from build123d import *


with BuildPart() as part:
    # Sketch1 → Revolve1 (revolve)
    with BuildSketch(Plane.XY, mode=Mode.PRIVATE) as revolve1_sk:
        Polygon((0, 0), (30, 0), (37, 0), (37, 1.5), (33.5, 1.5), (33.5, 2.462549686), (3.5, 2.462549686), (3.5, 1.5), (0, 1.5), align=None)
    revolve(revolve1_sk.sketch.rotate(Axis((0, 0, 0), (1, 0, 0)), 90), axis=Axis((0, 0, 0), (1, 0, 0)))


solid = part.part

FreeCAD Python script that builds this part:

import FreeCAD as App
import Part
import Sketcher
from FreeCAD import Vector


def add_polygon(sketch, points):
    """Adds a closed chain of lines whose ends are joined by coincident constraints."""
    first, n = sketch.GeometryCount, len(points)
    for a, b in zip(points, points[1:] + points[:1]):
        sketch.addGeometry(Part.LineSegment(App.Vector(*a, 0), App.Vector(*b, 0)), False)
    for i in range(n):
        sketch.addConstraint(Sketcher.Constraint("Coincident", first + i, 2, first + (i + 1) % n, 1))

doc = App.newDocument("Part")
params = doc.addObject("Spreadsheet::Sheet", "Params")
for row, (alias, value) in enumerate([
    ("sketch1_width", "37 mm"),
    ("sketch1_width2", "30 mm"),
    ("sketch1_height", "1.5 mm"),
    ("revolution_angle", "360 deg"),
], start=1):
    params.set(f"A{row}", alias)
    params.set(f"B{row}", "=" + value)
    params.setAlias(f"B{row}", alias)

body = doc.addObject("PartDesign::Body", "Body")

# Sketch on XY plane
sketch1 = body.newObject("Sketcher::SketchObject", "Sketch")
sketch1.AttachmentSupport = (doc.getObject("XY_Plane"), [""])
sketch1.MapMode = "FlatFace"
add_polygon(sketch1, [(0, 0), (37, 0), (37, 1.5), (33.5, 1.5), (33.5, 2.46255), (3.5, 2.46255), (3.5, 1.5), (0, 1.5)])  # lines 0-7
sketch1.addConstraint([
    Sketcher.Constraint("Horizontal", 0),
    Sketcher.Constraint("Vertical", 1),
    Sketcher.Constraint("Horizontal", 2),
    Sketcher.Constraint("Vertical", 3),
    Sketcher.Constraint("Horizontal", 4),
    Sketcher.Constraint("Vertical", 5),
    Sketcher.Constraint("Horizontal", 6),
    Sketcher.Constraint("Vertical", 7),
    Sketcher.Constraint("Coincident", 7, 2, -1, 1),
    Sketcher.Constraint("Horizontal", 2, 2, 5, 2),
    Sketcher.Constraint("Equal", 2, 6),
    Sketcher.Constraint("DistanceX", 0, 1, 0, 2, 37.0),
    Sketcher.Constraint("DistanceX", 4, 2, 4, 1, 30.0),
    Sketcher.Constraint("DistanceY", 1, 1, 1, 2, 1.5),
    Sketcher.Constraint("DistanceY", 3, 1, 3, 2, 0.96255),
])
sketch1.setExpression("Constraints[19]", "Params.sketch1_width")
sketch1.setExpression("Constraints[20]", "Params.sketch1_width2")
sketch1.setExpression("Constraints[21]", "Params.sketch1_height")
revolution = body.newObject("PartDesign::Revolution", "Revolution")
revolution.Profile = sketch1
revolution.ReferenceAxis = (sketch1, ["H_Axis"])
revolution.setExpression("Angle", "Params.revolution_angle")

doc.recompute()
